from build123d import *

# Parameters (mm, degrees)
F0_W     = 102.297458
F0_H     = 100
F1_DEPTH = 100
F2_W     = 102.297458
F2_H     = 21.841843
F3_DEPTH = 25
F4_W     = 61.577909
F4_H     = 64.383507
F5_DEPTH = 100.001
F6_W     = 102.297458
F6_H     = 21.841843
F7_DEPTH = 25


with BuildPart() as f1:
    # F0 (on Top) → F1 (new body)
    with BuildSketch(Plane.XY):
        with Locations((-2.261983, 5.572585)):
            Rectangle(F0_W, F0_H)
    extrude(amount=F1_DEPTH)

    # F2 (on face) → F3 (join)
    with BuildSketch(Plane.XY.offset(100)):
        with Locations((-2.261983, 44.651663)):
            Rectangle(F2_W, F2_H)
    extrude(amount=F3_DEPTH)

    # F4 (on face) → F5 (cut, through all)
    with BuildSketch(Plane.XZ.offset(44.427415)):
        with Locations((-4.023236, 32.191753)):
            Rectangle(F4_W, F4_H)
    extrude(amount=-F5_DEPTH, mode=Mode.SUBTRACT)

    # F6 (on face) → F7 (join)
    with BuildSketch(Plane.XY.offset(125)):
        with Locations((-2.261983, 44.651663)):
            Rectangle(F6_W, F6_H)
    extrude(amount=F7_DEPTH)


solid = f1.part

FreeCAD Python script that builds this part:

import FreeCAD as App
import Part
import Sketcher

V = App.Vector

doc = App.newDocument("Part")
body = doc.addObject("PartDesign::Body", "Body")

# Sketch on XY plane
sketch1 = doc.addObject("Sketcher::SketchObject", "Sketch")
body.addObject(sketch1)
sketch1.AttachmentSupport = (doc.XY_Plane, [""])
sketch1.MapMode = "FlatFace"
sketch1.addGeometry(Part.LineSegment(V(-53, 56, 0), V(-53, -44, 0)), False)
sketch1.addGeometry(Part.LineSegment(V(-53, -44, 0), V(49, -44, 0)), False)
sketch1.addGeometry(Part.LineSegment(V(49, -44, 0), V(49, 56, 0)), False)
sketch1.addGeometry(Part.LineSegment(V(49, 56, 0), V(-53, 56, 0)), False)
sketch1.addConstraint(Sketcher.Constraint("Coincident", 0, 2, 1, 1))
sketch1.addConstraint(Sketcher.Constraint("Coincident", 1, 2, 2, 1))
sketch1.addConstraint(Sketcher.Constraint("Coincident", 2, 2, 3, 1))
sketch1.addConstraint(Sketcher.Constraint("Coincident", 3, 2, 0, 1))
sketch1.addConstraint(Sketcher.Constraint("Vertical", 0))
sketch1.addConstraint(Sketcher.Constraint("Horizontal", 1))
sketch1.addConstraint(Sketcher.Constraint("Vertical", 2))
sketch1.addConstraint(Sketcher.Constraint("Horizontal", 3))
sketch1.addConstraint(Sketcher.Constraint("DistanceY", 0, 2, 0, 1, 100.0))
sketch1.addConstraint(Sketcher.Constraint("DistanceX", 1, 1, 1, 2, 102.297458))
sketch1.addConstraint(Sketcher.Constraint("DistanceX", 0, 2, -1, 1, 53.410712))
sketch1.addConstraint(Sketcher.Constraint("DistanceY", 0, 2, -1, 1, 44.427415))
pad1 = doc.addObject("PartDesign::Pad", "Pad")
body.addObject(pad1)
pad1.Profile = sketch1
pad1.Length = 100

# Sketch on XY plane
sketch2 = doc.addObject("Sketcher::SketchObject", "Sketch001")
body.addObject(sketch2)
sketch2.AttachmentSupport = (doc.XY_Plane, [""])
sketch2.MapMode = "FlatFace"
sketch2.AttachmentOffset = App.Placement(V(0, 0, 100), App.Rotation())
sketch2.addGeometry(Part.LineSegment(V(-53, 56, 0), V(-53, 34, 0)), False)
sketch2.addGeometry(Part.LineSegment(V(-53, 34, 0), V(49, 34, 0)), False)
sketch2.addGeometry(Part.LineSegment(V(49, 34, 0), V(49, 56, 0)), False)
sketch2.addGeometry(Part.LineSegment(V(49, 56, 0), V(-53, 56, 0)), False)
sketch2.addConstraint(Sketcher.Constraint("Coincident", 0, 2, 1, 1))
sketch2.addConstraint(Sketcher.Constraint("Coincident", 1, 2, 2, 1))
sketch2.addConstraint(Sketcher.Constraint("Coincident", 2, 2, 3, 1))
sketch2.addConstraint(Sketcher.Constraint("Coincident", 3, 2, 0, 1))
sketch2.addConstraint(Sketcher.Constraint("Vertical", 0))
sketch2.addConstraint(Sketcher.Constraint("Horizontal", 1))
sketch2.addConstraint(Sketcher.Constraint("Vertical", 2))
sketch2.addConstraint(Sketcher.Constraint("Horizontal", 3))
sketch2.addConstraint(Sketcher.Constraint("DistanceX", 1, 1, 1, 2, 102.297458))
sketch2.addConstraint(Sketcher.Constraint("DistanceY", 0, 2, 0, 1, 21.841843))
sketch2.addConstraint(Sketcher.Constraint("DistanceX", 0, 2, -1, 1, 53.410712))
sketch2.addConstraint(Sketcher.Constraint("DistanceY", -1, 1, 0, 2, 33.730742))
pad2 = doc.addObject("PartDesign::Pad", "Pad001")
body.addObject(pad2)
pad2.Profile = sketch2
pad2.Length = 25

# Sketch on XZ plane
sketch3 = doc.addObject("Sketcher::SketchObject", "Sketch002")
body.addObject(sketch3)
sketch3.AttachmentSupport = (doc.XZ_Plane, [""])
sketch3.MapMode = "FlatFace"
sketch3.AttachmentOffset = App.Placement(V(0, 0, 44.427415), App.Rotation())
sketch3.addGeometry(Part.LineSegment(V(-35, 64, 0), V(-35, 0, 0)), False)
sketch3.addGeometry(Part.LineSegment(V(-35, 0, 0), V(27, 0, 0)), False)
sketch3.addGeometry(Part.LineSegment(V(27, 0, 0), V(27, 64, 0)), False)
sketch3.addGeometry(Part.LineSegment(V(27, 64, 0), V(-35, 64, 0)), False)
sketch3.addConstraint(Sketcher.Constraint("Coincident", 0, 2, 1, 1))
sketch3.addConstraint(Sketcher.Constraint("Coincident", 1, 2, 2, 1))
sketch3.addConstraint(Sketcher.Constraint("Coincident", 2, 2, 3, 1))
sketch3.addConstraint(Sketcher.Constraint("Coincident", 3, 2, 0, 1))
sketch3.addConstraint(Sketcher.Constraint("Vertical", 0))
sketch3.addConstraint(Sketcher.Constraint("Horizontal", 1))
sketch3.addConstraint(Sketcher.Constraint("Vertical", 2))
sketch3.addConstraint(Sketcher.Constraint("Horizontal", 3))
sketch3.addConstraint(Sketcher.Constraint("PointOnObject", 0, 2, -1))
sketch3.addConstraint(Sketcher.Constraint("DistanceX", 1, 1, 1, 2, 61.577909))
sketch3.addConstraint(Sketcher.Constraint("DistanceY", 0, 2, 0, 1, 64.383507))
sketch3.addConstraint(Sketcher.Constraint("DistanceX", 0, 2, -1, 1, 34.81219))
pocket1 = doc.addObject("PartDesign::Pocket", "Pocket")
body.addObject(pocket1)
pocket1.Profile = sketch3
pocket1.Type = "ThroughAll"

# Sketch on XY plane
sketch4 = doc.addObject("Sketcher::SketchObject", "Sketch003")
body.addObject(sketch4)
sketch4.AttachmentSupport = (doc.XY_Plane, [""])
sketch4.MapMode = "FlatFace"
sketch4.AttachmentOffset = App.Placement(V(0, 0, 125), App.Rotation())
sketch4.addGeometry(Part.LineSegment(V(-53, 56, 0), V(-53, 34, 0)), False)
sketch4.addGeometry(Part.LineSegment(V(-53, 34, 0), V(49, 34, 0)), False)
sketch4.addGeometry(Part.LineSegment(V(49, 34, 0), V(49, 56, 0)), False)
sketch4.addGeometry(Part.LineSegment(V(49, 56, 0), V(-53, 56, 0)), False)
sketch4.addConstraint(Sketcher.Constraint("Coincident", 0, 2, 1, 1))
sketch4.addConstraint(Sketcher.Constraint("Coincident", 1, 2, 2, 1))
sketch4.addConstraint(Sketcher.Constraint("Coincident", 2, 2, 3, 1))
sketch4.addConstraint(Sketcher.Constraint("Coincident", 3, 2, 0, 1))
sketch4.addConstraint(Sketcher.Constraint("Vertical", 0))
sketch4.addConstraint(Sketcher.Constraint("Horizontal", 1))
sketch4.addConstraint(Sketcher.Constraint("Vertical", 2))
sketch4.addConstraint(Sketcher.Constraint("Horizontal", 3))
sketch4.addConstraint(Sketcher.Constraint("DistanceX", 1, 1, 1, 2, 102.297458))
sketch4.addConstraint(Sketcher.Constraint("DistanceY", 0, 2, 0, 1, 21.841843))
sketch4.addConstraint(Sketcher.Constraint("DistanceX", 0, 2, -1, 1, 53.410712))
sketch4.addConstraint(Sketcher.Constraint("DistanceY", -1, 1, 0, 2, 33.730742))
pad3 = doc.addObject("PartDesign::Pad", "Pad002")
body.addObject(pad3)
pad3.Profile = sketch4
pad3.Length = 25

doc.recompute()
